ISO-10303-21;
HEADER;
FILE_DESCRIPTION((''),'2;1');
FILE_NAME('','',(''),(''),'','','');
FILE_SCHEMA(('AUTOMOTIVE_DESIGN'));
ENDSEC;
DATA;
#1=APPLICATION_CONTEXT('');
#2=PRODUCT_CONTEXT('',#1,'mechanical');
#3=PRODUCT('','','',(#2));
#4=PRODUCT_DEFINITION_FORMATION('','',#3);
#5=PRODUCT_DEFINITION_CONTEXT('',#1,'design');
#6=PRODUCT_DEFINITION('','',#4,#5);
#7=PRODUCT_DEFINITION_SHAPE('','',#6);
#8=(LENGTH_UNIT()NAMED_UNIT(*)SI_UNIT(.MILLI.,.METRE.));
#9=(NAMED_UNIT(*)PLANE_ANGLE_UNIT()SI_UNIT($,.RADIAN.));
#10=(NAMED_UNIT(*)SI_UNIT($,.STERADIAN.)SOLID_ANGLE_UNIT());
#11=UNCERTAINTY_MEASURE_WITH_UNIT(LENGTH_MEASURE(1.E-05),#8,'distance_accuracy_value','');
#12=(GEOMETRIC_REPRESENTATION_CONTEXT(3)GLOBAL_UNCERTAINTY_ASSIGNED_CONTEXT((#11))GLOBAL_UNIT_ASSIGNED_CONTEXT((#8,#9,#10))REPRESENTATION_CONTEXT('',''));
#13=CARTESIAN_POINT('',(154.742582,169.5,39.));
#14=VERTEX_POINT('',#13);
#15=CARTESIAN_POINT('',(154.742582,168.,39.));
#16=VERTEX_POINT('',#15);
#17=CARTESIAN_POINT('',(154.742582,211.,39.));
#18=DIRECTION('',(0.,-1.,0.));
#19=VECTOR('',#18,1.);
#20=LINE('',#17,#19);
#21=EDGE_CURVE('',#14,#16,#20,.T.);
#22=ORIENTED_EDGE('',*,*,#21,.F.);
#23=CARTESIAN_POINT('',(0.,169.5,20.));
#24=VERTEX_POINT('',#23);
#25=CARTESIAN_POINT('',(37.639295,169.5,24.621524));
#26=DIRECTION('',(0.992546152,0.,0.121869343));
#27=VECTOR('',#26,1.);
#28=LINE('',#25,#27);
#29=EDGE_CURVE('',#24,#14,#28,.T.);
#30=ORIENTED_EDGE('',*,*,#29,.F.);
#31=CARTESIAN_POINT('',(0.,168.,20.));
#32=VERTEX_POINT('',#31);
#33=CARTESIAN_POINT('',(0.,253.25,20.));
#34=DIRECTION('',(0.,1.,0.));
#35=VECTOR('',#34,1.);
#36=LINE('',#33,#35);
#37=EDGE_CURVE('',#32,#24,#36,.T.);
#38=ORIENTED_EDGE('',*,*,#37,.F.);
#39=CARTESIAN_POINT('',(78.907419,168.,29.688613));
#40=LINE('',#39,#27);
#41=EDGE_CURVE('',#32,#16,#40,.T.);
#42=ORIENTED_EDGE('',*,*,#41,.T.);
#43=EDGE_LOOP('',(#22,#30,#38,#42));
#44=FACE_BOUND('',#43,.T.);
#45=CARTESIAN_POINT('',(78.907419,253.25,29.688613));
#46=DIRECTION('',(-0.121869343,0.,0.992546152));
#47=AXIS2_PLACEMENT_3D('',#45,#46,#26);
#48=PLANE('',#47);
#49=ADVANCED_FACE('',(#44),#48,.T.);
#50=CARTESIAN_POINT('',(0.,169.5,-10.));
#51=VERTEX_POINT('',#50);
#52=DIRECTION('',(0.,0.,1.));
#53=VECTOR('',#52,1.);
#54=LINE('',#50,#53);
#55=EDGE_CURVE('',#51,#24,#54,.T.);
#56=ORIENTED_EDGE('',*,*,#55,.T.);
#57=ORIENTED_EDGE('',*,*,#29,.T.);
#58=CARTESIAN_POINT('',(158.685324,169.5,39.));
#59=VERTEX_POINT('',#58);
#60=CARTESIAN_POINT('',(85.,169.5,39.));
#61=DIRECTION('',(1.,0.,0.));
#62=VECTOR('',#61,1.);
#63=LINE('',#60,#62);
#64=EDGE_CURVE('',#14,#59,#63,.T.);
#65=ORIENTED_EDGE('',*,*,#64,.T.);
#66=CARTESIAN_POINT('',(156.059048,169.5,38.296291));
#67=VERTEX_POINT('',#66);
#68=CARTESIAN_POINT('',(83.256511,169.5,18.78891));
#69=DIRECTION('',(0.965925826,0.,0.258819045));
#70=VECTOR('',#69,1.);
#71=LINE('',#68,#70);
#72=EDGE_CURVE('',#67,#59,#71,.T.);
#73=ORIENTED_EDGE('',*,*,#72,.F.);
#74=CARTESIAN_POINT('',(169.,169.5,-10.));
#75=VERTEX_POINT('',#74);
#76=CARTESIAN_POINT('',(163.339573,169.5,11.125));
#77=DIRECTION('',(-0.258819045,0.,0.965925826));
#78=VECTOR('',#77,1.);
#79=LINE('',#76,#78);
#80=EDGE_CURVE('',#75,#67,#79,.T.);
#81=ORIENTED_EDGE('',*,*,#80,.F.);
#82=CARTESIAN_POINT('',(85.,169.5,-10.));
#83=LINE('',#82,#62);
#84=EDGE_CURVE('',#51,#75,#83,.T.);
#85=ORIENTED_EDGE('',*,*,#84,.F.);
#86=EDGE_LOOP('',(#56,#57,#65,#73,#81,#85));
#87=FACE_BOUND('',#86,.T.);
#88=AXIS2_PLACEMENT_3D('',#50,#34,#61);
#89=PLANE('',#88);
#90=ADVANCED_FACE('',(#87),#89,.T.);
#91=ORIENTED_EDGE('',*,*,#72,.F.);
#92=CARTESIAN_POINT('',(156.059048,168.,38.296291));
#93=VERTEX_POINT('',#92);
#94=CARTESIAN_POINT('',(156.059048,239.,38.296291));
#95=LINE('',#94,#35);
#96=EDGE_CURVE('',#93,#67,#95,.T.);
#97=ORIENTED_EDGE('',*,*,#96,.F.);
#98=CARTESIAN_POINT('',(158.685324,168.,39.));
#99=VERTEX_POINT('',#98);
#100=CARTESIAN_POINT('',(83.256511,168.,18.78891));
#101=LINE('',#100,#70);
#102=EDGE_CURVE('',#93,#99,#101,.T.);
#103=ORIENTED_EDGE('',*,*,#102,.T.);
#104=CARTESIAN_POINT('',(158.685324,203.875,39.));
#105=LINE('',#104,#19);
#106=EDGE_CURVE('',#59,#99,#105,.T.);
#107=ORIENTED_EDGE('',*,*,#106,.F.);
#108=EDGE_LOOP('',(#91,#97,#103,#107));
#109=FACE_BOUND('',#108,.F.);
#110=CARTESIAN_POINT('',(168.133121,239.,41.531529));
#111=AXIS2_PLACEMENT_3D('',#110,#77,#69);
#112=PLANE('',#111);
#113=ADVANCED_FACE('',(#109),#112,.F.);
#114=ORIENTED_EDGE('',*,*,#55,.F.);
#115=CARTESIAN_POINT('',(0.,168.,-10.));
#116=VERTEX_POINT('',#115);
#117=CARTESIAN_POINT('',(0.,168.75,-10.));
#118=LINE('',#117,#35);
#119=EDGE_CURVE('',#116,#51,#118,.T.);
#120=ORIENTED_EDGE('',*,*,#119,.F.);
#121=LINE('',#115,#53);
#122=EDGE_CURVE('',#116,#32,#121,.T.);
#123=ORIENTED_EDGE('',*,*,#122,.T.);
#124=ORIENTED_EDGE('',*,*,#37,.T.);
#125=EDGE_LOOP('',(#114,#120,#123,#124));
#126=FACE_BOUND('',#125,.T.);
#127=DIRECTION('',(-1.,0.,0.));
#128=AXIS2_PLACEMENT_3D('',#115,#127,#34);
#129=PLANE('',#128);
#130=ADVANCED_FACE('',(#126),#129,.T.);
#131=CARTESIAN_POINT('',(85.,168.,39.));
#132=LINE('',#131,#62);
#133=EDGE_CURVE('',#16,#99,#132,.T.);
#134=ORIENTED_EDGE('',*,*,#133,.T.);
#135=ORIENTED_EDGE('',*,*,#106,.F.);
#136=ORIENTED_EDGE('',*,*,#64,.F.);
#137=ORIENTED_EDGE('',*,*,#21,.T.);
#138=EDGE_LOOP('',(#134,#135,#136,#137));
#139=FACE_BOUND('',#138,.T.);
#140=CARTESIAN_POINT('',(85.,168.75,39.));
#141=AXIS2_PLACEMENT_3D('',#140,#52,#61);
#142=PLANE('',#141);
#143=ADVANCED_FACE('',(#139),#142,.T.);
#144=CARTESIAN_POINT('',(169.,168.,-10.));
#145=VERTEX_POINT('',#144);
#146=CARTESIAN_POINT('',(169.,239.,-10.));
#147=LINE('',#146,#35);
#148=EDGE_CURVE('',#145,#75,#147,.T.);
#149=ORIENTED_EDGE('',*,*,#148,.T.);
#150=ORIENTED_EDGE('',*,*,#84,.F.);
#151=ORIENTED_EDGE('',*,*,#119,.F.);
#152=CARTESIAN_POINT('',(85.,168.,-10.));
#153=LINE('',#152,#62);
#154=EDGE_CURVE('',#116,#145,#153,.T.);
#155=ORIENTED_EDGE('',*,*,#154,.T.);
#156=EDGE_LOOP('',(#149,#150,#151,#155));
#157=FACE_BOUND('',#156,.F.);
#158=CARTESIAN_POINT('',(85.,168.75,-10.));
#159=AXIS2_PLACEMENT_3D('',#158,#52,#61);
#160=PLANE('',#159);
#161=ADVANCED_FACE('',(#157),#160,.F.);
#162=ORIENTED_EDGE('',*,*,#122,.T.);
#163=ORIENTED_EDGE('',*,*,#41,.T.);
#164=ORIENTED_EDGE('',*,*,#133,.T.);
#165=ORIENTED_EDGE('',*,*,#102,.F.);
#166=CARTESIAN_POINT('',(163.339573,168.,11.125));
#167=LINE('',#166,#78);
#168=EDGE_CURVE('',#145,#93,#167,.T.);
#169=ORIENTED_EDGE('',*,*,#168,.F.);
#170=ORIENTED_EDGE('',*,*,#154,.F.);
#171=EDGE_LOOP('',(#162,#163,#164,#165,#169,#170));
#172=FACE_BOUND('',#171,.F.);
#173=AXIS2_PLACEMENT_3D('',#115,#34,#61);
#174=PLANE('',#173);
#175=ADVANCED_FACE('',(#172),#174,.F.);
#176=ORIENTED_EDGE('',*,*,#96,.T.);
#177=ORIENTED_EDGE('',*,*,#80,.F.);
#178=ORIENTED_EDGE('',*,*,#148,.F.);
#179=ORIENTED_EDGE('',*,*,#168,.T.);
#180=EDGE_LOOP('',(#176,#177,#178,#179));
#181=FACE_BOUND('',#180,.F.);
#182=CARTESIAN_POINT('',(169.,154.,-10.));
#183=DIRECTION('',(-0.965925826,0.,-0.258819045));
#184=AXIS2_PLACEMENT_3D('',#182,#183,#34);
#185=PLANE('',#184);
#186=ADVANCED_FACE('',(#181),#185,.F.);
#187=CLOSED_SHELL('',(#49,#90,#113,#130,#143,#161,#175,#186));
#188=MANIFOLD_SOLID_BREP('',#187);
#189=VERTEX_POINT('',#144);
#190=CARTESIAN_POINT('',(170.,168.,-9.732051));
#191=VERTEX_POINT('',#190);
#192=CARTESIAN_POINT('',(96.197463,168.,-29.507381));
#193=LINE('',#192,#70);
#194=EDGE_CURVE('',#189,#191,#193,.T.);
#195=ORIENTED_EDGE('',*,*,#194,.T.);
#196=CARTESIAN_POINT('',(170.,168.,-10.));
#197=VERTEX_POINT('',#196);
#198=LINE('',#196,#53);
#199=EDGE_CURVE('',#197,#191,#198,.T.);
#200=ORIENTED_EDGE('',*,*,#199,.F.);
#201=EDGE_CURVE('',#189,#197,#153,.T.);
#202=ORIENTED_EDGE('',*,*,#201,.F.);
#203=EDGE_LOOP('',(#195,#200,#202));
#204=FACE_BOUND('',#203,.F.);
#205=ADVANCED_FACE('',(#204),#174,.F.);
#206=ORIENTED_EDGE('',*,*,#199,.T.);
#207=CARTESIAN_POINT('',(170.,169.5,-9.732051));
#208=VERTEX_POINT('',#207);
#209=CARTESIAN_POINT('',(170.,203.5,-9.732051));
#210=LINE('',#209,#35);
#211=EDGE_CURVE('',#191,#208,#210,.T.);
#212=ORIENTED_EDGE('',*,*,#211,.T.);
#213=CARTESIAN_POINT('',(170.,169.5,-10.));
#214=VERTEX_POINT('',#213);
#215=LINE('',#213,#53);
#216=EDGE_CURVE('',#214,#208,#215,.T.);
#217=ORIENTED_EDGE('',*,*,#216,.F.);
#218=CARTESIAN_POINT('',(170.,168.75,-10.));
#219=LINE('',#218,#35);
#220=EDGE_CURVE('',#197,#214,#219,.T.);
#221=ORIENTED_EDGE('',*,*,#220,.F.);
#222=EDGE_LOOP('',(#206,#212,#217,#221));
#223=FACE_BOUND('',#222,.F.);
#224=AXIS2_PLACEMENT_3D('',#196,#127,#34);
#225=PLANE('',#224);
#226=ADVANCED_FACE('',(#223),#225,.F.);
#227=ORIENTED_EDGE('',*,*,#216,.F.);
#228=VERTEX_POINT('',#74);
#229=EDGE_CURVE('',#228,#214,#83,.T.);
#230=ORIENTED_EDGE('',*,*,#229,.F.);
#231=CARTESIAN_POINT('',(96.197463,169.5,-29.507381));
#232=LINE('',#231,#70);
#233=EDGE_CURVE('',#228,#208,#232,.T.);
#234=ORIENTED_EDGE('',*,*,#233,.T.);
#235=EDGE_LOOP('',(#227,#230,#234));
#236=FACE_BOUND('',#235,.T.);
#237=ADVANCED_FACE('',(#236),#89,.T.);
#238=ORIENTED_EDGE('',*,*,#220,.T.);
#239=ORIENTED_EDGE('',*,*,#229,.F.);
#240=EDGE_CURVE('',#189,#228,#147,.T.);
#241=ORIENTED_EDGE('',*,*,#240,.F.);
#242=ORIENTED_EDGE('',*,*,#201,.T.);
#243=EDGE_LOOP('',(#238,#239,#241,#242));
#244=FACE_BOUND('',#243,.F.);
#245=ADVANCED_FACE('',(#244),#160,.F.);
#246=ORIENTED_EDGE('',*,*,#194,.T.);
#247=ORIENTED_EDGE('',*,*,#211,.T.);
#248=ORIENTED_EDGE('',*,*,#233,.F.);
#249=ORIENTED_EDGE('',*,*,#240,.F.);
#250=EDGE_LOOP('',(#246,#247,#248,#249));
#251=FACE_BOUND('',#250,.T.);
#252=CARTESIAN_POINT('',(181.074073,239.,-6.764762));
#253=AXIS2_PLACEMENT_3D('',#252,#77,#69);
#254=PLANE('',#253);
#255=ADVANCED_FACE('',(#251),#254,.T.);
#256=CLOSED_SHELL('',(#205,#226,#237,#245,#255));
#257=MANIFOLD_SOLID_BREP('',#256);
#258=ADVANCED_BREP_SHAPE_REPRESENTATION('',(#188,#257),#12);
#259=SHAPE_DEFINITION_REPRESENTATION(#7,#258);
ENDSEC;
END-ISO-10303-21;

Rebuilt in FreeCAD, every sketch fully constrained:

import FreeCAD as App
import Part
import Sketcher

V = App.Vector


def add_polygon(sketch, points):
    """Adds a closed chain of lines whose ends are joined by coincident constraints."""
    first, n = sketch.GeometryCount, len(points)
    for a, b in zip(points, points[1:] + points[:1]):
        sketch.addGeometry(Part.LineSegment(App.Vector(*a, 0), App.Vector(*b, 0)), False)
    for i in range(n):
        sketch.addConstraint(Sketcher.Constraint("Coincident", first + i, 2, first + (i + 1) % n, 1))

doc = App.newDocument("Part")
body = doc.addObject("PartDesign::Body", "Body")

sketch1 = doc.addObject("Sketcher::SketchObject", "Sketch")
body.addObject(sketch1)
sketch1.AttachmentSupport = (doc.XY_Plane, [""])
sketch1.MapMode = "FlatFace"
add_polygon(sketch1, [(0, 170.5), (0, 0), (159, 0), (159, 170.5)])
sketch1.addConstraint(Sketcher.Constraint("Vertical", 0))
sketch1.addConstraint(Sketcher.Constraint("Horizontal", 1))
sketch1.addConstraint(Sketcher.Constraint("Vertical", 2))
sketch1.addConstraint(Sketcher.Constraint("Horizontal", 3))
sketch1.addConstraint(Sketcher.Constraint("Coincident", 0, 2, -1, 1))
sketch1.addConstraint(Sketcher.Constraint("DistanceX", 1, 1, 1, 2, 159.0))
sketch1.addConstraint(Sketcher.Constraint("DistanceY", 0, 2, 0, 1, 170.5))
pad1 = doc.addObject("PartDesign::Pad", "Pad")
body.addObject(pad1)
pad1.Profile = sketch1
pad1.Length = 20.5
body2 = doc.addObject("PartDesign::Body", "Body001")
doc.recompute()

body.Placement = App.Placement(V(0, 0, 20), App.Rotation(V(0, -1, 0), 7))
boolean = doc.addObject("PartDesign::Boolean", "Boolean")
body2.addObject(boolean)
boolean.Type = "Fuse"
boolean.addObjects([body])
body3 = doc.addObject("PartDesign::Body", "Body002")

sketch2 = doc.addObject("Sketcher::SketchObject", "Sketch001")
body3.addObject(sketch2)
sketch2.AttachmentSupport = (doc.getObject("XY_Plane002"), [""])
sketch2.MapMode = "FlatFace"
add_polygon(sketch2, [(0, 170), (0, 0), (25, 0), (25, 170)])
sketch2.addConstraint(Sketcher.Constraint("Vertical", 0))
sketch2.addConstraint(Sketcher.Constraint("Horizontal", 1))
sketch2.addConstraint(Sketcher.Constraint("Vertical", 2))
sketch2.addConstraint(Sketcher.Constraint("Horizontal", 3))
sketch2.addConstraint(Sketcher.Constraint("Coincident", 0, 2, -1, 1))
sketch2.addConstraint(Sketcher.Constraint("DistanceX", 1, 1, 1, 2, 25.0))
sketch2.addConstraint(Sketcher.Constraint("DistanceY", 0, 2, 0, 1, 170.0))
pad2 = doc.addObject("PartDesign::Pad", "Pad001")
body3.addObject(pad2)
pad2.Profile = sketch2
pad2.Length = 50
body4 = doc.addObject("PartDesign::Body", "Body003")
doc.recompute()

body3.Placement = App.Placement(V(169, -14, -10), App.Rotation(V(0, -1, 0), 15))
boolean2 = doc.addObject("PartDesign::Boolean", "Boolean001")
body4.addObject(boolean2)
boolean2.Type = "Fuse"
boolean2.addObjects([body3])
body5 = doc.addObject("PartDesign::Body", "Body004")
body5.AllowCompound = True

sketch3 = doc.addObject("Sketcher::SketchObject", "Sketch002")
body5.addObject(sketch3)
sketch3.AttachmentSupport = (doc.getObject("XY_Plane004"), [""])
sketch3.MapMode = "FlatFace"
sketch3.AttachmentOffset = App.Placement(V(0, 0, -10), App.Rotation())
add_polygon(sketch3, [(0, 1.5), (0, 0), (170, 0), (170, 1.5)])
sketch3.addConstraint(Sketcher.Constraint("Vertical", 0))
sketch3.addConstraint(Sketcher.Constraint("Horizontal", 1))
sketch3.addConstraint(Sketcher.Constraint("Vertical", 2))
sketch3.addConstraint(Sketcher.Constraint("Horizontal", 3))
sketch3.addConstraint(Sketcher.Constraint("Coincident", 0, 2, -1, 1))
sketch3.addConstraint(Sketcher.Constraint("DistanceX", 1, 1, 1, 2, 170.0))
sketch3.addConstraint(Sketcher.Constraint("DistanceY", 0, 2, 0, 1, 1.5))
pad3 = doc.addObject("PartDesign::Pad", "Pad002")
body5.addObject(pad3)
pad3.Profile = sketch3
pad3.Length = 49
doc.recompute()

boolean3 = doc.addObject("PartDesign::Boolean", "Boolean002")
body5.addObject(boolean3)
boolean3.Type = "Cut"
boolean3.addObjects([body4])
doc.recompute()

boolean4 = doc.addObject("PartDesign::Boolean", "Boolean003")
body5.addObject(boolean4)
boolean4.Type = "Cut"
boolean4.addObjects([body2])
body6 = doc.addObject("PartDesign::Body", "Body005")
body6.AllowCompound = True
doc.recompute()

body5.Placement = App.Placement(V(0, 168, 0), App.Rotation(V(0, 0, 1), 0))
boolean5 = doc.addObject("PartDesign::Boolean", "Boolean004")
body6.addObject(boolean5)
boolean5.Type = "Fuse"
boolean5.addObjects([body5])

doc.recompute()
